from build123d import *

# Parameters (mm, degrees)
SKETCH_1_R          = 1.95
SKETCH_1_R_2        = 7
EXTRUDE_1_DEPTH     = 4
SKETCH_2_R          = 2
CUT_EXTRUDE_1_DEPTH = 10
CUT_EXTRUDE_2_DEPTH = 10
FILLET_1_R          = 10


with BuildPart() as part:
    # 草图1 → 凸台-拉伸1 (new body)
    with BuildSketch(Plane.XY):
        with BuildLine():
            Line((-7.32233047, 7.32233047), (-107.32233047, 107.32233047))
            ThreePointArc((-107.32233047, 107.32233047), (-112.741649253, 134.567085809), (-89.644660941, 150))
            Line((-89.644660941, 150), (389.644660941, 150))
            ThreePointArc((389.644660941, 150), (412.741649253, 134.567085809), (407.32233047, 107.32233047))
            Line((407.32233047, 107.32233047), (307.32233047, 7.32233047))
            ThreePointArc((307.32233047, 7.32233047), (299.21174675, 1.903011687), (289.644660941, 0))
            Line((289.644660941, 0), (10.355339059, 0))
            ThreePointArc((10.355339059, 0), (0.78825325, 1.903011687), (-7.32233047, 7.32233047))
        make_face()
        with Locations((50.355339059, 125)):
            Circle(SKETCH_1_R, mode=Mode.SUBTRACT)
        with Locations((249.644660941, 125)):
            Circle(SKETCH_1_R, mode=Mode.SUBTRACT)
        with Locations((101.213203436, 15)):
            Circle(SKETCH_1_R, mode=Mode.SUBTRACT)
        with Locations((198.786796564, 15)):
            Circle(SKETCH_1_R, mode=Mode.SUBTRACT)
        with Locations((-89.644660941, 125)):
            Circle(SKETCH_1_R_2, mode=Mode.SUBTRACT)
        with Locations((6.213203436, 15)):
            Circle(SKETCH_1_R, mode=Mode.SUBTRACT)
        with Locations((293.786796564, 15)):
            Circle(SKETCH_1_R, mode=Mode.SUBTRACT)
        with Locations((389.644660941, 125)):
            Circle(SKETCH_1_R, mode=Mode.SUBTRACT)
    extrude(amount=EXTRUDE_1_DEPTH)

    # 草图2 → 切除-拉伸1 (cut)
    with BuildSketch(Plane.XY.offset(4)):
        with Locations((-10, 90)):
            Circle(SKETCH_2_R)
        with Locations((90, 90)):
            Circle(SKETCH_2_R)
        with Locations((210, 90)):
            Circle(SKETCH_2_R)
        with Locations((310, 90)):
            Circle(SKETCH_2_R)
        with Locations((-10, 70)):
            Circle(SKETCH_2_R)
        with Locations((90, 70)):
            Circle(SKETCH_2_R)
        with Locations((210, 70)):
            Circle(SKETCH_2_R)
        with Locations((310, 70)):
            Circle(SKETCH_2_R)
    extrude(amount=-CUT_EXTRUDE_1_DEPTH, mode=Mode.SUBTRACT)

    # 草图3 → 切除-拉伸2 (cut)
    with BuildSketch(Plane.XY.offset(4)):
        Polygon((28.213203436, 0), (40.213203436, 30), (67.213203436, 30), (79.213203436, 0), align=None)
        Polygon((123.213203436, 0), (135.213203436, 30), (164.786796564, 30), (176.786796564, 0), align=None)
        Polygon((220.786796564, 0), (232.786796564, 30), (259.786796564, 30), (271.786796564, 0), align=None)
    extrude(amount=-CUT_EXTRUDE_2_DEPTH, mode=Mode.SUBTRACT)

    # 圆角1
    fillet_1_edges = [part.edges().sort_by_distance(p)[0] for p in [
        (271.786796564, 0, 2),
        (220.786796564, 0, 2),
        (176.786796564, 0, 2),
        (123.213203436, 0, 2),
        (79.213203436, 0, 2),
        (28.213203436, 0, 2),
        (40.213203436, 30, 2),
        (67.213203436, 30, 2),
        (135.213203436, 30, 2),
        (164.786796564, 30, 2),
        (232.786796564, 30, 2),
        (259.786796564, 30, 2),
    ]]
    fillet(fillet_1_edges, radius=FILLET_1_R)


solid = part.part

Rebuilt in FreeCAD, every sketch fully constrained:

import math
import FreeCAD as App
import Part
import Sketcher

V = App.Vector


def edges_at(feature, points):
    """Names of the edges that pass closest to the given points."""
    edges = feature.Shape.Edges
    near = lambda p: min(range(len(edges)), key=lambda i: edges[i].distToShape(Part.Vertex(*p))[0])
    return sorted({f"Edge{near(p) + 1}" for p in points})

doc = App.newDocument("Part")
params = doc.addObject("Spreadsheet::Sheet", "Params")
for row, (alias, value) in enumerate([
    ("sketch1_diameter", "14 mm"),
    ("sketch1_radius", "25 mm"),
    ("sketch1_diameter2", "3.9 mm"),
    ("pad1_length", "4 mm"),
    ("sketch2_diameter", "4 mm"),
    ("pocket1_length", "10 mm"),
    ("sketch3_width", "51 mm"),
    ("sketch3_width2", "27 mm"),
    ("pocket2_length", "10 mm"),
    ("fillet_radius", "10 mm"),
], start=1):
    params.set(f"A{row}", alias)
    params.set(f"B{row}", "=" + value)
    params.setAlias(f"B{row}", alias)

body = doc.addObject("PartDesign::Body", "Body")

# Sketch on XY plane
sketch1 = body.newObject("Sketcher::SketchObject", "Sketch")
sketch1.AttachmentSupport = (doc.getObject("XY_Plane"), [""])
sketch1.MapMode = "FlatFace"
sketch1.addGeometry([
    Part.LineSegment(V(-107.32233, 107.32233, 0), V(-7.32233, 7.32233, 0)),  # 0
    Part.ArcOfCircle(Part.Circle(V(10.355339, 25, 0), V(0, 0, 1), 25), math.radians(-135), math.radians(-90)),  # 1
    Part.LineSegment(V(10.355339, 0, 0), V(289.644661, 0, 0)),  # 2
    Part.ArcOfCircle(Part.Circle(V(289.644661, 25, 0), V(0, 0, 1), 25), math.radians(-90), math.radians(-45)),  # 3
    Part.LineSegment(V(307.32233, 7.32233, 0), V(407.32233, 107.32233, 0)),  # 4
    Part.ArcOfCircle(Part.Circle(V(389.644661, 125, 0), V(0, 0, 1), 25), math.radians(-45), math.radians(90)),  # 5
    Part.LineSegment(V(389.644661, 150, 0), V(-89.644661, 150, 0)),  # 6
    Part.ArcOfCircle(Part.Circle(V(-89.644661, 125, 0), V(0, 0, 1), 25), math.radians(90), math.radians(225)),  # 7
    Part.Circle(V(293.786797, 15, 0), V(0, 0, 1), 1.95),  # 8
    Part.Circle(V(198.786797, 15, 0), V(0, 0, 1), 1.95),  # 9
    Part.Circle(V(101.213203, 15, 0), V(0, 0, 1), 1.95),  # 10
    Part.Circle(V(6.213203, 15, 0), V(0, 0, 1), 1.95),  # 11
    Part.Circle(V(389.644661, 125, 0), V(0, 0, 1), 1.95),  # 12
    Part.Circle(V(249.644661, 125, 0), V(0, 0, 1), 1.95),  # 13
    Part.Circle(V(50.355339, 125, 0), V(0, 0, 1), 1.95),  # 14
    Part.Circle(V(-89.644661, 125, 0), V(0, 0, 1), 7),  # 15
], False)
sketch1.addConstraint([
    Sketcher.Constraint("Tangent", 0, 2, 1, 1),
    Sketcher.Constraint("Tangent", 1, 2, 2, 1),
    Sketcher.Constraint("Tangent", 2, 2, 3, 1),
    Sketcher.Constraint("Tangent", 3, 2, 4, 1),
    Sketcher.Constraint("Tangent", 4, 2, 5, 1),
    Sketcher.Constraint("Tangent", 5, 2, 6, 1),
    Sketcher.Constraint("Tangent", 6, 2, 7, 1),
    Sketcher.Constraint("Tangent", 7, 2, 0, 1),
    Sketcher.Constraint("Horizontal", 2),
    Sketcher.Constraint("Horizontal", 6),
    Sketcher.Constraint("Coincident", 12, 3, 5, 3),
    Sketcher.Constraint("Coincident", 15, 3, 7, 3),
    Sketcher.Constraint("Equal", 1, 3),
    Sketcher.Constraint("Equal", 3, 5),
    Sketcher.Constraint("Equal", 5, 7),
    Sketcher.Constraint("Equal", 8, 9),
    Sketcher.Constraint("Equal", 9, 10),
    Sketcher.Constraint("Equal", 10, 11),
    Sketcher.Constraint("Equal", 11, 12),
    Sketcher.Constraint("Equal", 12, 13),
    Sketcher.Constraint("Equal", 13, 14),
    Sketcher.Constraint("PointOnObject", 1, 2, -1),
    Sketcher.Constraint("Perpendicular", 0, 4),
    Sketcher.Constraint("Horizontal", 8, 3, 9, 3),
    Sketcher.Constraint("Horizontal", 9, 3, 10, 3),
    Sketcher.Constraint("Horizontal", 10, 3, 11, 3),
    Sketcher.Constraint("Horizontal", 12, 3, 13, 3),
    Sketcher.Constraint("Horizontal", 13, 3, 14, 3),
    Sketcher.Constraint("Horizontal", 0, 2, 3, 2),
    Sketcher.Constraint("Diameter", 15, 14.0),
    Sketcher.Constraint("Radius", 1, 25.0),
    Sketcher.Constraint("Diameter", 8, 3.9),
    Sketcher.Constraint("DistanceY", -1, 1, 5, 3, 125.0),
    Sketcher.Constraint("DistanceY", -1, 1, 8, 3, 15.0),
    Sketcher.Constraint("DistanceX", 9, 3, 8, 3, 95.0),
    Sketcher.Constraint("DistanceX", 11, 3, 10, 3, 95.0),
    Sketcher.Constraint("DistanceX", 13, 3, 3, 3, 40.0),
    Sketcher.Constraint("DistanceX", 1, 3, 14, 3, 40.0),
    Sketcher.Constraint("DistanceX", 2, 1, 2, 2, 279.289322),
    Sketcher.Constraint("DistanceX", -1, 1, 1, 3, 10.355339),
    Sketcher.Constraint("DistanceX", -1, 1, 8, 3, 293.786797),
    Sketcher.Constraint("DistanceX", -1, 1, 10, 3, 101.213203),
])
sketch1.setExpression("Constraints[29]", "Params.sketch1_diameter")
sketch1.setExpression("Constraints[30]", "Params.sketch1_radius")
sketch1.setExpression("Constraints[31]", "Params.sketch1_diameter2")
pad1 = body.newObject("PartDesign::Pad", "Pad")
pad1.Profile = sketch1
pad1.setExpression("Length", "Params.pad1_length")

# Sketch on XY plane
sketch2 = body.newObject("Sketcher::SketchObject", "Sketch001")
sketch2.AttachmentSupport = (doc.getObject("XY_Plane"), [""])
sketch2.MapMode = "FlatFace"
sketch2.AttachmentOffset = App.Placement(V(0, 0, 4), App.Rotation())
sketch2.addGeometry([
    Part.Circle(V(-10, 90, 0), V(0, 0, 1), 2),  # 0
    Part.Circle(V(90, 90, 0), V(0, 0, 1), 2),  # 1
    Part.Circle(V(210, 90, 0), V(0, 0, 1), 2),  # 2
    Part.Circle(V(310, 90, 0), V(0, 0, 1), 2),  # 3
    Part.Circle(V(-10, 70, 0), V(0, 0, 1), 2),  # 4
    Part.Circle(V(90, 70, 0), V(0, 0, 1), 2),  # 5
    Part.Circle(V(210, 70, 0), V(0, 0, 1), 2),  # 6
    Part.Circle(V(310, 70, 0), V(0, 0, 1), 2),  # 7
], False)
sketch2.addConstraint([
    Sketcher.Constraint("Equal", 0, 1),
    Sketcher.Constraint("Equal", 1, 2),
    Sketcher.Constraint("Equal", 2, 3),
    Sketcher.Constraint("Equal", 3, 4),
    Sketcher.Constraint("Equal", 4, 5),
    Sketcher.Constraint("Equal", 5, 6),
    Sketcher.Constraint("Equal", 6, 7),
    Sketcher.Constraint("Horizontal", 0, 3, 1, 3),
    Sketcher.Constraint("Horizontal", 1, 3, 2, 3),
    Sketcher.Constraint("Horizontal", 2, 3, 3, 3),
    Sketcher.Constraint("Horizontal", 4, 3, 5, 3),
    Sketcher.Constraint("Horizontal", 5, 3, 6, 3),
    Sketcher.Constraint("Horizontal", 6, 3, 7, 3),
    Sketcher.Constraint("Vertical", 0, 3, 4, 3),
    Sketcher.Constraint("Vertical", 1, 3, 5, 3),
    Sketcher.Constraint("Vertical", 2, 3, 6, 3),
    Sketcher.Constraint("Vertical", 3, 3, 7, 3),
    Sketcher.Constraint("Diameter", 0, 4.0),
    Sketcher.Constraint("DistanceX", 0, 3, -1, 1, 10.0),
    Sketcher.Constraint("DistanceY", -1, 1, 0, 3, 90.0),
    Sketcher.Constraint("DistanceX", -1, 1, 1, 3, 90.0),
    Sketcher.Constraint("DistanceX", -1, 1, 2, 3, 210.0),
    Sketcher.Constraint("DistanceX", -1, 1, 3, 3, 310.0),
    Sketcher.Constraint("DistanceY", -1, 1, 4, 3, 70.0),
])
sketch2.setExpression("Constraints[17]", "Params.sketch2_diameter")
pocket1 = body.newObject("PartDesign::Pocket", "Pocket")
pocket1.Profile = sketch2
pocket1.setExpression("Length", "Params.pocket1_length")

# Sketch on XY plane
sketch3 = body.newObject("Sketcher::SketchObject", "Sketch002")
sketch3.AttachmentSupport = (doc.getObject("XY_Plane"), [""])
sketch3.MapMode = "FlatFace"
sketch3.AttachmentOffset = App.Placement(V(0, 0, 4), App.Rotation())
sketch3.addGeometry([
    Part.LineSegment(V(40.213203, 30, 0), V(28.213203, 0, 0)),  # 0
    Part.LineSegment(V(28.213203, 0, 0), V(79.213203, 0, 0)),  # 1
    Part.LineSegment(V(79.213203, 0, 0), V(67.213203, 30, 0)),  # 2
    Part.LineSegment(V(67.213203, 30, 0), V(40.213203, 30, 0)),  # 3
    Part.LineSegment(V(135.213203, 30, 0), V(123.213203, 0, 0)),  # 4
    Part.LineSegment(V(123.213203, 0, 0), V(176.786797, 0, 0)),  # 5
    Part.LineSegment(V(176.786797, 0, 0), V(164.786797, 30, 0)),  # 6
    Part.LineSegment(V(164.786797, 30, 0), V(135.213203, 30, 0)),  # 7
    Part.LineSegment(V(232.786797, 30, 0), V(220.786797, 0, 0)),  # 8
    Part.LineSegment(V(220.786797, 0, 0), V(271.786797, 0, 0)),  # 9
    Part.LineSegment(V(271.786797, 0, 0), V(259.786797, 30, 0)),  # 10
    Part.LineSegment(V(259.786797, 30, 0), V(232.786797, 30, 0)),  # 11
], False)
sketch3.addConstraint([
    Sketcher.Constraint("Coincident", 0, 2, 1, 1),
    Sketcher.Constraint("Coincident", 1, 2, 2, 1),
    Sketcher.Constraint("Coincident", 2, 2, 3, 1),
    Sketcher.Constraint("Coincident", 3, 2, 0, 1),
    Sketcher.Constraint("Coincident", 4, 2, 5, 1),
    Sketcher.Constraint("Coincident", 5, 2, 6, 1),
    Sketcher.Constraint("Coincident", 6, 2, 7, 1),
    Sketcher.Constraint("Coincident", 7, 2, 4, 1),
    Sketcher.Constraint("Coincident", 8, 2, 9, 1),
    Sketcher.Constraint("Coincident", 9, 2, 10, 1),
    Sketcher.Constraint("Coincident", 10, 2, 11, 1),
    Sketcher.Constraint("Coincident", 11, 2, 8, 1),
    Sketcher.Constraint("Horizontal", 1),
    Sketcher.Constraint("Horizontal", 3),
    Sketcher.Constraint("Horizontal", 5),
    Sketcher.Constraint("Horizontal", 7),
    Sketcher.Constraint("Horizontal", 9),
    Sketcher.Constraint("Horizontal", 11),
    Sketcher.Constraint("PointOnObject", 0, 2, -1),
    Sketcher.Constraint("PointOnObject", 4, 2, -1),
    Sketcher.Constraint("PointOnObject", 8, 2, -1),
    Sketcher.Constraint("Parallel", 0, 4),
    Sketcher.Constraint("Parallel", 2, 6),
    Sketcher.Constraint("Parallel", 4, 8),
    Sketcher.Constraint("Parallel", 6, 10),
    Sketcher.Constraint("Horizontal", 3, 2, 6, 2),
    Sketcher.Constraint("Horizontal", 7, 2, 10, 2),
    Sketcher.Constraint("Equal", 1, 9),
    Sketcher.Constraint("Equal", 0, 2),
    Sketcher.Constraint("DistanceX", 1, 1, 1, 2, 51.0),
    Sketcher.Constraint("DistanceX", 3, 2, 3, 1, 27.0),
    Sketcher.Constraint("DistanceY", -1, 1, 2, 2, 30.0),
    Sketcher.Constraint("DistanceX", 1, 2, 4, 2, 44.0),
    Sketcher.Constraint("DistanceX", 5, 2, 8, 2, 44.0),
    Sketcher.Constraint("DistanceX", 5, 1, 5, 2, 53.573593),
    Sketcher.Constraint("DistanceX", -1, 1, 0, 2, 28.213203),
])
sketch3.setExpression("Constraints[29]", "Params.sketch3_width")
sketch3.setExpression("Constraints[30]", "Params.sketch3_width2")
pocket2 = body.newObject("PartDesign::Pocket", "Pocket001")
pocket2.Profile = sketch3
pocket2.setExpression("Length", "Params.pocket2_length")
doc.recompute()

fillet = body.newObject("PartDesign::Fillet", "Fillet")
fillet.Base = (pocket2, edges_at(pocket2, [
    (271.787, 0, 2),
    (220.787, 0, 2),
    (176.787, 0, 2),
    (123.213, 0, 2),
    (79.213, 0, 2),
    (28.213, 0, 2),
    (40.213, 30, 2),
    (67.213, 30, 2),
    (135.213, 30, 2),
    (164.787, 30, 2),
    (232.787, 30, 2),
    (259.787, 30, 2),
]))
fillet.setExpression("Radius", "Params.fillet_radius")

doc.recompute()
